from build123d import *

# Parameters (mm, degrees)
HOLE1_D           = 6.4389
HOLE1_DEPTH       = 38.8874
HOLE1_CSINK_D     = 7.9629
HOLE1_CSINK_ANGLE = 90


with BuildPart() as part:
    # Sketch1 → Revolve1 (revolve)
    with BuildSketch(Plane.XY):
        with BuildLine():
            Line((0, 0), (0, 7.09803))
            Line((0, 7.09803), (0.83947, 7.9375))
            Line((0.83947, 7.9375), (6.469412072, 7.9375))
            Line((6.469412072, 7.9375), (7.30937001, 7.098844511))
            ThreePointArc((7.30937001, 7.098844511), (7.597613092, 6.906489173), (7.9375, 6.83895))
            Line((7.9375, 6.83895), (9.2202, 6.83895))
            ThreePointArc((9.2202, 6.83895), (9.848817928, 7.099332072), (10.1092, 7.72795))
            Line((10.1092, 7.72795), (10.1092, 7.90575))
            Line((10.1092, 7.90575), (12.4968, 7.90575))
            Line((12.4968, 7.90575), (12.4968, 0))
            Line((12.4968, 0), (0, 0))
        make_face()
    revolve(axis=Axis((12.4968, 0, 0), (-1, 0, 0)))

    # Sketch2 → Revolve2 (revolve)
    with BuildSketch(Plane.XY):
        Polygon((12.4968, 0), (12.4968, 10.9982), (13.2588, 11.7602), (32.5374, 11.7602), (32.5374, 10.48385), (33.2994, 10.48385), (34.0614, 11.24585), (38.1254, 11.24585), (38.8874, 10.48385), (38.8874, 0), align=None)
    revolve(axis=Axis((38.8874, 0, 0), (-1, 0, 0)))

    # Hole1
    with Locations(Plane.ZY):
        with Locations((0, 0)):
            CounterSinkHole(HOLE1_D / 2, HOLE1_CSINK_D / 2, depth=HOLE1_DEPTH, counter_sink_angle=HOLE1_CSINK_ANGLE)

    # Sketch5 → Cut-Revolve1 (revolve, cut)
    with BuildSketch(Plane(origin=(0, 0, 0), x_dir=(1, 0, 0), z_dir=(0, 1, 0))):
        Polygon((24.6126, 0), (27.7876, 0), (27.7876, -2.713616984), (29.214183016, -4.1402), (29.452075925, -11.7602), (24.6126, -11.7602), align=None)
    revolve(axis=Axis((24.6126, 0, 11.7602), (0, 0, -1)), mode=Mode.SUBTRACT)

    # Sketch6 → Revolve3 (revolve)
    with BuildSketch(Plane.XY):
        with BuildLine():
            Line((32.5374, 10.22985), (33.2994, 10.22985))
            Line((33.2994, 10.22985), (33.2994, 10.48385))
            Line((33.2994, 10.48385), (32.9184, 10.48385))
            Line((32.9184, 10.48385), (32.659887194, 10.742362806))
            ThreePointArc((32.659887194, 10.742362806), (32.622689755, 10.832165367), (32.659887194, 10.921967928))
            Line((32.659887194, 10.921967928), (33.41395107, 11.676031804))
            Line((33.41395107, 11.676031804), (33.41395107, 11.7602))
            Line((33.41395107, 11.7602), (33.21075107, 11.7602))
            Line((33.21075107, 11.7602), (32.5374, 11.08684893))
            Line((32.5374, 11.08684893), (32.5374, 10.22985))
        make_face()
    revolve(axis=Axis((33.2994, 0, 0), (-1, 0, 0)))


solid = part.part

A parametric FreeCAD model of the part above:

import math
import FreeCAD as App
import Part
import Sketcher
Q = App.Units.Quantity


def add_polygon(sketch, points):
    """Adds a closed chain of lines whose ends are joined by coincident constraints."""
    first, n = sketch.GeometryCount, len(points)
    for a, b in zip(points, points[1:] + points[:1]):
        sketch.addGeometry(Part.LineSegment(App.Vector(*a, 0), App.Vector(*b, 0)), False)
    for i in range(n):
        sketch.addConstraint(Sketcher.Constraint("Coincident", first + i, 2, first + (i + 1) % n, 1))

doc = App.newDocument("Part")
body = doc.addObject("PartDesign::Body", "Body")

# Sketch on XY plane
sketch1 = doc.addObject("Sketcher::SketchObject", "Sketch")
body.addObject(sketch1)
sketch1.AttachmentSupport = (doc.XY_Plane, [""])
sketch1.MapMode = "FlatFace"
sketch1.addGeometry([
    Part.LineSegment(App.Vector(0, 7.09803, 0), App.Vector(0, 0, 0)),  # 0
    Part.LineSegment(App.Vector(0, 0, 0), App.Vector(12.4968, 0, 0)),  # 1
    Part.LineSegment(App.Vector(12.4968, 0, 0), App.Vector(12.4968, 7.90575, 0)),  # 2
    Part.LineSegment(App.Vector(12.4968, 7.90575, 0), App.Vector(10.1092, 7.90575, 0)),  # 3
    Part.LineSegment(App.Vector(10.1092, 7.90575, 0), App.Vector(10.1092, 7.72795, 0)),  # 4
    Part.ArcOfCircle(Part.Circle(App.Vector(9.2202, 7.72795, 0), App.Vector(0, 0, 1), 0.889), math.radians(-90), math.radians(0)),  # 5
    Part.LineSegment(App.Vector(9.2202, 6.83895, 0), App.Vector(7.9375, 6.83895, 0)),  # 6
    Part.ArcOfCircle(Part.Circle(App.Vector(7.9375, 7.72795, 0), App.Vector(0, 0, 1), 0.889), math.radians(-134.955544), math.radians(-90)),  # 7
    Part.LineSegment(App.Vector(7.30937, 7.098845, 0), App.Vector(6.469412, 7.9375, 0)),  # 8
    Part.LineSegment(App.Vector(6.469412, 7.9375, 0), App.Vector(0.83947, 7.9375, 0)),  # 9
    Part.LineSegment(App.Vector(0.83947, 7.9375, 0), App.Vector(0, 7.09803, 0)),  # 10
], False)
sketch1.addConstraint([
    Sketcher.Constraint("Coincident", 0, 2, 1, 1),
    Sketcher.Constraint("Coincident", 1, 2, 2, 1),
    Sketcher.Constraint("Coincident", 2, 2, 3, 1),
    Sketcher.Constraint("Coincident", 3, 2, 4, 1),
    Sketcher.Constraint("Tangent", 4, 2, 5, 2),
    Sketcher.Constraint("Tangent", 5, 1, 6, 1),
    Sketcher.Constraint("Tangent", 6, 2, 7, 2),
    Sketcher.Constraint("Tangent", 7, 1, 8, 1),
    Sketcher.Constraint("Coincident", 8, 2, 9, 1),
    Sketcher.Constraint("Coincident", 9, 2, 10, 1),
    Sketcher.Constraint("Coincident", 10, 2, 0, 1),
    Sketcher.Constraint("Vertical", 0),
    Sketcher.Constraint("Horizontal", 1),
    Sketcher.Constraint("Vertical", 2),
    Sketcher.Constraint("Horizontal", 3),
    Sketcher.Constraint("Vertical", 4),
    Sketcher.Constraint("Horizontal", 6),
    Sketcher.Constraint("Horizontal", 9),
    Sketcher.Constraint("Coincident", 0, 2, -1, 1),
    Sketcher.Constraint("Equal", 5, 7),
    Sketcher.Constraint("Angle", 10, Q("-135 deg")),
    Sketcher.Constraint("Radius", 5, Q("0.035 in")),
    Sketcher.Constraint("DistanceX", 1, 1, 1, 2, Q("0.492 in")),
    Sketcher.Constraint("DistanceX", 3, 2, 3, 1, Q("0.094 in")),
    Sketcher.Constraint("DistanceY", 4, 2, 4, 1, Q("0.007 in")),
    Sketcher.Constraint("DistanceX", 6, 2, 6, 1, Q("0.0505 in")),
    Sketcher.Constraint("DistanceY", -1, 1, 8, 2, Q("0.3125 in")),
    Sketcher.Constraint("DistanceY", 6, 2, 10, 2, Q("0.0102 in")),
    Sketcher.Constraint("DistanceY", 0, 2, 0, 1, 7.09803),
    Sketcher.Constraint("DistanceX", 9, 2, 7, 1, 6.4699),
])
revolution = doc.addObject("PartDesign::Revolution", "Revolution")
body.addObject(revolution)
revolution.Profile = sketch1
revolution.ReferenceAxis = (sketch1, ["H_Axis"])
revolution.Angle = 360

# Sketch on XY plane
sketch2 = doc.addObject("Sketcher::SketchObject", "Sketch001")
body.addObject(sketch2)
sketch2.AttachmentSupport = (doc.XY_Plane, [""])
sketch2.MapMode = "FlatFace"
add_polygon(sketch2, [(12.4968, 10.9982), (12.4968, 0), (38.8874, 0), (38.8874, 10.48385), (38.1254, 11.24585), (34.0614, 11.24585), (33.2994, 10.48385), (32.5374, 10.48385), (32.5374, 11.7602), (13.2588, 11.7602)])  # lines 0-9
sketch2.addConstraint([
    Sketcher.Constraint("Vertical", 0),
    Sketcher.Constraint("Horizontal", 1),
    Sketcher.Constraint("Vertical", 2),
    Sketcher.Constraint("Horizontal", 4),
    Sketcher.Constraint("Horizontal", 6),
    Sketcher.Constraint("Vertical", 7),
    Sketcher.Constraint("Horizontal", 8),
    Sketcher.Constraint("PointOnObject", 0, 2, -1),
    Sketcher.Constraint("Perpendicular", 3, 5),
    Sketcher.Constraint("Parallel", 5, 9),
    Sketcher.Constraint("Horizontal", 2, 2, 5, 2),
    Sketcher.Constraint("Equal", 3, 5),
    Sketcher.Constraint("Equal", 5, 9),
    Sketcher.Constraint("DistanceX", 4, 2, 4, 1, Q("0.16 in")),
    Sketcher.Constraint("DistanceX", 6, 2, 6, 1, Q("0.03 in")),
    Sketcher.Constraint("DistanceX", 1, 1, 1, 2, Q("1.039 in")),
    Sketcher.Constraint("DistanceX", 8, 2, 8, 1, Q("0.759 in")),
    Sketcher.Constraint("DistanceY", 0, 2, 0, 1, Q("0.433 in")),
    Sketcher.Constraint("DistanceX", -1, 1, 0, 2, Q("0.492 in")),
    Sketcher.Constraint("DistanceY", 2, 1, 2, 2, 10.48385),
])
revolution2 = doc.addObject("PartDesign::Revolution", "Revolution001")
body.addObject(revolution2)
revolution2.Profile = sketch2
revolution2.ReferenceAxis = (sketch2, ["H_Axis"])
revolution2.Angle = 360

# Sketch on YZ plane
sketch3 = doc.addObject("Sketcher::SketchObject", "Sketch002")
body.addObject(sketch3)
sketch3.AttachmentSupport = (doc.YZ_Plane, [""])
sketch3.MapMode = "FlatFace"
sketch3.addGeometry(Part.Circle(App.Vector(0, 0, 0), App.Vector(0, 0, 1), 3.21945), False)
sketch3.addConstraint([
    Sketcher.Constraint("Coincident", 0, 3, -1, 1),
    Sketcher.Constraint("Diameter", 0, Q("0.2535 in")),
])
doc.recompute()
hole = doc.addObject("PartDesign::Hole", "Hole")
body.addObject(hole)
hole.Profile = sketch3
hole.ThreadType = "None"
hole.Diameter = Q("0.2535 in")
hole.DepthType = "Dimension"
hole.Depth = Q("1.531 in")
hole.DrillPoint = "Flat"
hole.HoleCutType = "Countersink"
hole.HoleCutDiameter = Q("0.3135 in")
hole.HoleCutCountersinkAngle = 90
hole.Reversed = True

# Sketch on XZ plane
sketch4 = doc.addObject("Sketcher::SketchObject", "Sketch003")
body.addObject(sketch4)
sketch4.AttachmentSupport = (doc.XZ_Plane, [""])
sketch4.MapMode = "FlatFace"
add_polygon(sketch4, [(27.7876, 0), (24.6126, 0), (24.6126, 11.7602), (29.452076, 11.7602), (29.214183, 4.1402), (27.7876, 2.713617)])  # lines 0-5
sketch4.addGeometry(Part.LineSegment(App.Vector(24.6126, 11.7602, 0), App.Vector(24.6126, 0, 0)), True)  # axis
sketch4.addConstraint([
    Sketcher.Constraint("Horizontal", 0),
    Sketcher.Constraint("Vertical", 1),
    Sketcher.Constraint("Horizontal", 2),
    Sketcher.Constraint("Vertical", 5),
    Sketcher.Constraint("Vertical", 6),
    Sketcher.Constraint("Coincident", 6, 1, 1, 2),
    Sketcher.Constraint("PointOnObject", 0, 2, -1),
    Sketcher.Constraint("PointOnObject", 6, 2, -1),
    Sketcher.Constraint("Angle", 4, Q("-135 deg")),
    Sketcher.Constraint("DistanceY", 3, 2, 2, 2, Q("0.3 in")),
    Sketcher.Constraint("DistanceX", 0, 2, 0, 1, Q("0.125 in")),
    Sketcher.Constraint("DistanceY", 1, 1, 1, 2, Q("0.463 in")),
    Sketcher.Constraint("DistanceX", -1, 1, 0, 2, Q("0.969 in")),
    Sketcher.Constraint("DistanceX", 2, 1, 2, 2, 4.839476),
    Sketcher.Constraint("DistanceY", 5, 2, 5, 1, 2.713617),
])
groove = doc.addObject("PartDesign::Groove", "Groove")
body.addObject(groove)
groove.Profile = sketch4
groove.ReferenceAxis = (sketch4, ["Axis0"])
groove.Angle = 360

# Sketch on XY plane
sketch5 = doc.addObject("Sketcher::SketchObject", "Sketch004")
body.addObject(sketch5)
sketch5.AttachmentSupport = (doc.XY_Plane, [""])
sketch5.MapMode = "FlatFace"
sketch5.addGeometry([
    Part.LineSegment(App.Vector(32.5374, 10.22985, 0), App.Vector(33.2994, 10.22985, 0)),  # 0
    Part.LineSegment(App.Vector(33.2994, 10.22985, 0), App.Vector(33.2994, 10.48385, 0)),  # 1
    Part.LineSegment(App.Vector(33.2994, 10.48385, 0), App.Vector(32.9184, 10.48385, 0)),  # 2
    Part.LineSegment(App.Vector(32.9184, 10.48385, 0), App.Vector(32.659887, 10.742363, 0)),  # 3
    Part.ArcOfCircle(Part.Circle(App.Vector(32.74969, 10.832165, 0), App.Vector(0, 0, 1), 0.127), math.radians(135), math.radians(225)),  # 4
    Part.LineSegment(App.Vector(32.659887, 10.921968, 0), App.Vector(33.413951, 11.676032, 0)),  # 5
    Part.LineSegment(App.Vector(33.413951, 11.676032, 0), App.Vector(33.413951, 11.7602, 0)),  # 6
    Part.LineSegment(App.Vector(33.413951, 11.7602, 0), App.Vector(33.210751, 11.7602, 0)),  # 7
    Part.LineSegment(App.Vector(33.210751, 11.7602, 0), App.Vector(32.5374, 11.086849, 0)),  # 8
    Part.LineSegment(App.Vector(32.5374, 11.086849, 0), App.Vector(32.5374, 10.22985, 0)),  # 9
], False)
sketch5.addConstraint([
    Sketcher.Constraint("Coincident", 0, 2, 1, 1),
    Sketcher.Constraint("Coincident", 1, 2, 2, 1),
    Sketcher.Constraint("Coincident", 2, 2, 3, 1),
    Sketcher.Constraint("Tangent", 3, 2, 4, 2),
    Sketcher.Constraint("Tangent", 4, 1, 5, 1),
    Sketcher.Constraint("Coincident", 5, 2, 6, 1),
    Sketcher.Constraint("Coincident", 6, 2, 7, 1),
    Sketcher.Constraint("Coincident", 7, 2, 8, 1),
    Sketcher.Constraint("Coincident", 8, 2, 9, 1),
    Sketcher.Constraint("Coincident", 9, 2, 0, 1),
    Sketcher.Constraint("Horizontal", 0),
    Sketcher.Constraint("Vertical", 1),
    Sketcher.Constraint("Horizontal", 2),
    Sketcher.Constraint("Vertical", 6),
    Sketcher.Constraint("Horizontal", 7),
    Sketcher.Constraint("Vertical", 9),
    Sketcher.Constraint("Perpendicular", 3, 5),
    Sketcher.Constraint("Parallel", 5, 8),
    Sketcher.Constraint("Vertical", 3, 2, 4, 1),
    Sketcher.Constraint("Radius", 4, Q("0.005 in")),
    Sketcher.Constraint("DistanceX", 0, 1, 0, 2, Q("0.03 in")),
    Sketcher.Constraint("DistanceY", 1, 1, 1, 2, Q("0.01 in")),
    Sketcher.Constraint("DistanceX", 2, 2, 2, 1, Q("0.015 in")),
    Sketcher.Constraint("DistanceX", 7, 2, 7, 1, Q("0.008 in")),
    Sketcher.Constraint("DistanceX", -1, 1, 0, 2, Q("1.311 in")),
    Sketcher.Constraint("DistanceY", -1, 1, 6, 2, Q("0.463 in")),
    Sketcher.Constraint("DistanceY", 9, 2, 9, 1, 0.856999),
    Sketcher.Constraint("DistanceY", 6, 1, 6, 2, 0.084168),
    Sketcher.Constraint("DistanceY", -1, 1, 0, 2, 10.22985),
])
revolution3 = doc.addObject("PartDesign::Revolution", "Revolution002")
body.addObject(revolution3)
revolution3.Profile = sketch5
revolution3.ReferenceAxis = (sketch5, ["H_Axis"])
revolution3.Angle = 360

doc.recompute()
